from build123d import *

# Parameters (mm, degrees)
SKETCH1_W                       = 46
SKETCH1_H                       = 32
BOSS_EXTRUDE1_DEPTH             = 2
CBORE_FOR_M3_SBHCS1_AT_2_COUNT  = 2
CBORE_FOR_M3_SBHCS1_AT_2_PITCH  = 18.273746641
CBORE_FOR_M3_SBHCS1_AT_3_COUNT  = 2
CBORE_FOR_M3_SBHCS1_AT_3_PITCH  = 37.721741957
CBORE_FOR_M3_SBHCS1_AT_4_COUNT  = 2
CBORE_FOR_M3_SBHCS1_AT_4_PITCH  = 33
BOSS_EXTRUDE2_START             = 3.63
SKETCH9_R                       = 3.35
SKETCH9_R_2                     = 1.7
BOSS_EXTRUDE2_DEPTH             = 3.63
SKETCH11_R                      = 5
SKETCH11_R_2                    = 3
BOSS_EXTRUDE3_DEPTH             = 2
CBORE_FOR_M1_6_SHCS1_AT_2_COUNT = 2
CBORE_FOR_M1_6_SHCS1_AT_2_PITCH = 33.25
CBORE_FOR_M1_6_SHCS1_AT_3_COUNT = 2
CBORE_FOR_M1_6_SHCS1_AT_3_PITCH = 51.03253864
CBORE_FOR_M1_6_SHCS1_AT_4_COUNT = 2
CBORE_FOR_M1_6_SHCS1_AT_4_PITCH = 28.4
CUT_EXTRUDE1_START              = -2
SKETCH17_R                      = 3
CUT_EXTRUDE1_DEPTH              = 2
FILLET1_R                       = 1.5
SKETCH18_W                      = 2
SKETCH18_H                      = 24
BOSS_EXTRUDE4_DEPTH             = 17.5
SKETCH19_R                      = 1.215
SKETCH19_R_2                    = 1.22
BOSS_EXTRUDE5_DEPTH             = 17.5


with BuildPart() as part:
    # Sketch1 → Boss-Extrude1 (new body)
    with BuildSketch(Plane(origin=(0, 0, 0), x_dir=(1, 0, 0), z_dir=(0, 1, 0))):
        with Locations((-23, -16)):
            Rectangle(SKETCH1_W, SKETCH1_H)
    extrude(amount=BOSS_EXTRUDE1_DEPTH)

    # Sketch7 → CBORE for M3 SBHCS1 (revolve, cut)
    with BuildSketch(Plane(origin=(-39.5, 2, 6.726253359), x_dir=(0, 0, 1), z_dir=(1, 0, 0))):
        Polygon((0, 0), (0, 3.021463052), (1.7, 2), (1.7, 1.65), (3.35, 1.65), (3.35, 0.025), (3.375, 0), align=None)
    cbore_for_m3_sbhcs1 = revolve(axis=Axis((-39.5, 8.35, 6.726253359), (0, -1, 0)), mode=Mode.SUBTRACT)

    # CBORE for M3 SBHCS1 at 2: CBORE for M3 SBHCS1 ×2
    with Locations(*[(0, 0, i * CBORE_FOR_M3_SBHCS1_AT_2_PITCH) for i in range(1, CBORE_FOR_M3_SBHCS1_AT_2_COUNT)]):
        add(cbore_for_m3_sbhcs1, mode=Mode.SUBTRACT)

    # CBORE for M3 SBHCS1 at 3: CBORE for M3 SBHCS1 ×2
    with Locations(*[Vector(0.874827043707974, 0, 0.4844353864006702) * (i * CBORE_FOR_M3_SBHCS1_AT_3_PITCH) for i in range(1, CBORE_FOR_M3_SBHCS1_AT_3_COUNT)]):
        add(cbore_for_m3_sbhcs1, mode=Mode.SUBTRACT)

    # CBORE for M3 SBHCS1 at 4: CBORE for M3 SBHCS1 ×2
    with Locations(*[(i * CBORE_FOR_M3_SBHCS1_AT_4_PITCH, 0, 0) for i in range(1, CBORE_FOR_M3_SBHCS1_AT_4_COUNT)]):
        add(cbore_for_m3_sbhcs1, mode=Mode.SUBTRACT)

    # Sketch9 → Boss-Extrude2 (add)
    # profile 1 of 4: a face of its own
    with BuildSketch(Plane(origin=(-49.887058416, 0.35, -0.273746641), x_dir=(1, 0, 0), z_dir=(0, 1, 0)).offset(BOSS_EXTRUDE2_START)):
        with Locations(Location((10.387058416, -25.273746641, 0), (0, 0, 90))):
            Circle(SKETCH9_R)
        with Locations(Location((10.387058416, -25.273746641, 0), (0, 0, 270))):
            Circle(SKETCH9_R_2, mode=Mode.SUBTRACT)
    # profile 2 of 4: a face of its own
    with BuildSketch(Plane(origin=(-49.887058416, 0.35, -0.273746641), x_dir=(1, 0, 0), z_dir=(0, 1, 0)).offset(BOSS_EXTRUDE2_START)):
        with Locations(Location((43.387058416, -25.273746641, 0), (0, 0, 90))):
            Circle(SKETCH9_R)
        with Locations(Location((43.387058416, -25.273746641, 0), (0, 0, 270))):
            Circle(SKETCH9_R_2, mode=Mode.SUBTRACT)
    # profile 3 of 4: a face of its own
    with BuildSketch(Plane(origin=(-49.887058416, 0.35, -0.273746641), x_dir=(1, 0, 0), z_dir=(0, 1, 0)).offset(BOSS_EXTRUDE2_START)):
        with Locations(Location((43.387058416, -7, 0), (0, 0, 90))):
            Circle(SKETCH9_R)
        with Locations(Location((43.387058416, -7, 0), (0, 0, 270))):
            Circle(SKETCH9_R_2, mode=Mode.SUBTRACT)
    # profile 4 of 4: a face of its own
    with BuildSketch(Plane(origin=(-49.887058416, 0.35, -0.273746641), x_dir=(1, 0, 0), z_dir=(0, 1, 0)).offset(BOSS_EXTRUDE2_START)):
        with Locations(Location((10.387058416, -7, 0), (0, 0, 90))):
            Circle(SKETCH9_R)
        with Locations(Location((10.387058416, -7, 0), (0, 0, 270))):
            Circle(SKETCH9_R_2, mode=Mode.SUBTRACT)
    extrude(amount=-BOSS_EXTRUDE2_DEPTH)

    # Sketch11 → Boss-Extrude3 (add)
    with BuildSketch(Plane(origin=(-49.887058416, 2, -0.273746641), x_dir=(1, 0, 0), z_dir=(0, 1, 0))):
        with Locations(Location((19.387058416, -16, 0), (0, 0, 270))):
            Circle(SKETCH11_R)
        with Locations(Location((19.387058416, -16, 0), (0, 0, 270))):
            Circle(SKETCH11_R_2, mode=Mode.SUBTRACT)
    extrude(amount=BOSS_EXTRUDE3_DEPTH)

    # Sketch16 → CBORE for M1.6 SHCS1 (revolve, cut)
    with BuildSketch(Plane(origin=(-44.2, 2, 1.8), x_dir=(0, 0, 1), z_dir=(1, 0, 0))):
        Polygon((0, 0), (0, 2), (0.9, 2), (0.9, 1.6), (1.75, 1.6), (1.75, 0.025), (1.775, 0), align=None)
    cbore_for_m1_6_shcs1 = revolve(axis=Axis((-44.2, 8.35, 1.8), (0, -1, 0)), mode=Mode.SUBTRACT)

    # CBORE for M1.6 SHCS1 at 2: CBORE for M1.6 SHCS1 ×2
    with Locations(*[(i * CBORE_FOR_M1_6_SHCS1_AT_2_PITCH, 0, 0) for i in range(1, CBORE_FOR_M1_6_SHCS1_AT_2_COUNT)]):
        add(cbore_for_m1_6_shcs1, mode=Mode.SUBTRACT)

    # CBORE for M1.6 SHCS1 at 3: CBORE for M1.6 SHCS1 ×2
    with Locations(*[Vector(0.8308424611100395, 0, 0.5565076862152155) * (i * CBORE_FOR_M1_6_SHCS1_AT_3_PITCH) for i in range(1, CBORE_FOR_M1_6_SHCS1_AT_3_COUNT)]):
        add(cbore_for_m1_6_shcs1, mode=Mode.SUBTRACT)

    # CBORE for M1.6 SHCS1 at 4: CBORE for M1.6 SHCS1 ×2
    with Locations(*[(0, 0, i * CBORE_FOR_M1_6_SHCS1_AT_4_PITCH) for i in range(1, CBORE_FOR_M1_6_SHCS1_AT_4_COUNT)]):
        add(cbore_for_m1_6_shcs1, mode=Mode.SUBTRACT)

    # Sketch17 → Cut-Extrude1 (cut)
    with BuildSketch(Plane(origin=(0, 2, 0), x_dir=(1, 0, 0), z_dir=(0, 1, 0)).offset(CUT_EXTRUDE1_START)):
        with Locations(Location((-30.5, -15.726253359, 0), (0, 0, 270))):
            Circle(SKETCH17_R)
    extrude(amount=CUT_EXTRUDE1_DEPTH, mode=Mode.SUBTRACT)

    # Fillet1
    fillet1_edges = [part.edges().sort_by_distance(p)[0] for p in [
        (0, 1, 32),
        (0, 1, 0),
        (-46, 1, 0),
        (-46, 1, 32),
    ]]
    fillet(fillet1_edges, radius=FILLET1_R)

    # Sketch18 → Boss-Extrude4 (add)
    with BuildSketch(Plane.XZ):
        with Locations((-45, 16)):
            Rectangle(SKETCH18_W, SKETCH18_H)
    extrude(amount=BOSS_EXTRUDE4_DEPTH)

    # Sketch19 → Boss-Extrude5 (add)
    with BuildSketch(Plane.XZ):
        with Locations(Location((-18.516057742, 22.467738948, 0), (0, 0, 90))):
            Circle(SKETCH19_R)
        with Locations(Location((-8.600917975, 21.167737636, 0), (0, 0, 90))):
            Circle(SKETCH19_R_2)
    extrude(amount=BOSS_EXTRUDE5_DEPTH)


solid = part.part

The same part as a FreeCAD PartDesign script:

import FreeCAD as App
import Part
import Sketcher
from FreeCAD import Vector
Q = App.Units.Quantity


def edges_at(feature, points):
    """Names of the edges that pass closest to the given points."""
    edges = feature.Shape.Edges
    near = lambda p: min(range(len(edges)), key=lambda i: edges[i].distToShape(Part.Vertex(*p))[0])
    return sorted({f"Edge{near(p) + 1}" for p in points})


def add_polygon(sketch, points):
    """Adds a closed chain of lines whose ends are joined by coincident constraints."""
    first, n = sketch.GeometryCount, len(points)
    for a, b in zip(points, points[1:] + points[:1]):
        sketch.addGeometry(Part.LineSegment(App.Vector(*a, 0), App.Vector(*b, 0)), False)
    for i in range(n):
        sketch.addConstraint(Sketcher.Constraint("Coincident", first + i, 2, first + (i + 1) % n, 1))

doc = App.newDocument("Part")
params = doc.addObject("Spreadsheet::Sheet", "Params")
for row, (alias, value) in enumerate([
    ("sketch1_width", "46 mm"),
    ("sketch1_height", "32 mm"),
    ("pad1_length", "2 mm"),
    ("sketch2_width", "0.35 mm"),
    ("sketch2_height", "1.65 mm"),
    ("groove_angle", "360 deg"),
    ("linearpattern_pitch", "18.273747 mm"),
    ("linearpattern2_pitch", "37.721742 mm"),
    ("linearpattern3_pitch", "33 mm"),
    ("sketch3_diameter", "6.7 mm"),
    ("sketch3_diameter2", "3.4 mm"),
    ("pad2_length", "3.63 mm"),
    ("sketch4_diameter", "10 mm"),
    ("sketch4_diameter2", "6 mm"),
    ("pad3_length", "2 mm"),
    ("sketch5_width", "2 mm"),
    ("sketch5_width2", "0.4 mm"),
    ("sketch5_height", "0.9 mm"),
    ("sketch5_height2", "0.85 mm"),
    ("groove2_angle", "360 deg"),
    ("linearpattern4_pitch", "33.25 mm"),
    ("linearpattern5_pitch", "51.032539 mm"),
    ("linearpattern6_pitch", "28.4 mm"),
    ("sketch6_diameter", "6 mm"),
    ("pocket1_length", "2 mm"),
    ("fillet_radius", "1.5 mm"),
    ("sketch7_width", "2 mm"),
    ("sketch7_height", "24 mm"),
    ("pad4_length", "17.5 mm"),
    ("sketch8_diameter", "2.43 mm"),
    ("sketch8_diameter2", "2.44 mm"),
    ("pad5_length", "17.5 mm"),
], start=1):
    params.set(f"A{row}", alias)
    params.set(f"B{row}", "=" + value)
    params.setAlias(f"B{row}", alias)

body = doc.addObject("PartDesign::Body", "Body")

# Sketch on XZ plane
sketch1 = body.newObject("Sketcher::SketchObject", "Sketch")
sketch1.AttachmentSupport = (doc.getObject("XZ_Plane"), [""])
sketch1.MapMode = "FlatFace"
add_polygon(sketch1, [(-46, 0), (-46, 32), (0, 32), (0, 0)])  # lines 0-3
sketch1.addConstraint(Sketcher.Constraint("Vertical", 0))
sketch1.addConstraint(Sketcher.Constraint("Horizontal", 1))
sketch1.addConstraint(Sketcher.Constraint("Vertical", 2))
sketch1.addConstraint(Sketcher.Constraint("Horizontal", 3))
sketch1.addConstraint(Sketcher.Constraint("Coincident", 2, 2, -1, 1))
sketch1.addConstraint(Sketcher.Constraint("DistanceX", 1, 1, 1, 2, 46.0))
sketch1.addConstraint(Sketcher.Constraint("DistanceY", 0, 1, 0, 2, 32.0))
sketch1.setExpression("Constraints[9]", "Params.sketch1_width")
sketch1.setExpression("Constraints[10]", "Params.sketch1_height")
pad1 = body.newObject("PartDesign::Pad", "Pad")
pad1.Profile = sketch1
pad1.setExpression("Length", "Params.pad1_length")
pad1.Reversed = True

# Sketch on YZ plane
sketch2 = body.newObject("Sketcher::SketchObject", "Sketch001")
sketch2.AttachmentSupport = (doc.getObject("YZ_Plane"), [""])
sketch2.MapMode = "FlatFace"
sketch2.AttachmentOffset = App.Placement(Vector(0, 0, -39.5), App.Rotation())
add_polygon(sketch2, [(-1.021463, 6.726253), (2, 6.726253), (2, 10.101253), (1.975, 10.076253), (0.35, 10.076253), (0.35, 8.426253), (0, 8.426253)])  # lines 0-6
sketch2.addGeometry(Part.LineSegment(Vector(2, 6.726253, 0), Vector(-1.021463, 6.726253, 0)), True)  # axis
sketch2.addConstraint(Sketcher.Constraint("Horizontal", 0))
sketch2.addConstraint(Sketcher.Constraint("Vertical", 1))
sketch2.addConstraint(Sketcher.Constraint("Horizontal", 3))
sketch2.addConstraint(Sketcher.Constraint("Vertical", 4))
sketch2.addConstraint(Sketcher.Constraint("Horizontal", 5))
sketch2.addConstraint(Sketcher.Constraint("Horizontal", 7))
sketch2.addConstraint(Sketcher.Constraint("Coincident", 7, 1, 0, 2))
sketch2.addConstraint(Sketcher.Constraint("PointOnObject", 5, 2, -2))
sketch2.addConstraint(Sketcher.Constraint("Equal", 0, 7))
sketch2.addConstraint(Sketcher.Constraint("Angle", 2, Q("-135 deg")))
sketch2.addConstraint(Sketcher.Constraint("Angle", 6, Q("-121 deg")))
sketch2.addConstraint(Sketcher.Constraint("DistanceX", -1, 1, 0, 2, 2.0))
sketch2.addConstraint(Sketcher.Constraint("DistanceX", 5, 2, 5, 1, 0.35))
sketch2.addConstraint(Sketcher.Constraint("DistanceY", 4, 2, 4, 1, 1.65))
sketch2.addConstraint(Sketcher.Constraint("DistanceY", 0, 2, 4, 2, 1.7))
sketch2.addConstraint(Sketcher.Constraint("DistanceX", 3, 2, 3, 1, 1.625))
sketch2.addConstraint(Sketcher.Constraint("DistanceY", -1, 1, 0, 2, 6.726253))
sketch2.setExpression("Constraints[19]", "Params.sketch2_width")
sketch2.setExpression("Constraints[20]", "Params.sketch2_height")
groove = body.newObject("PartDesign::Groove", "Groove")
groove.Profile = sketch2
groove.ReferenceAxis = (sketch2, ["Axis0"])
groove.setExpression("Angle", "Params.groove_angle")
doc.recompute()

linearpattern = body.newObject("PartDesign::LinearPattern", "LinearPattern")
linearpattern.Originals = [groove]
linearpattern.Direction = (doc.getObject("Z_Axis"), [""])
linearpattern.Mode = "offset"
linearpattern.setExpression("Offset", "Params.linearpattern_pitch")
linearpattern.Occurrences = 2
body.Tip = linearpattern
doc.recompute()

datumline = body.newObject("PartDesign::Line", "DatumLine")
datumline.Placement = App.Placement(Vector(0, 0, 0), App.Rotation(Vector(0, 0, 1), Vector(0.874827044, 0, 0.484435386)))
linearpattern2 = body.newObject("PartDesign::LinearPattern", "LinearPattern001")
linearpattern2.Originals = [groove]
linearpattern2.Direction = (datumline, [""])
linearpattern2.Mode = "offset"
linearpattern2.setExpression("Offset", "Params.linearpattern2_pitch")
linearpattern2.Occurrences = 2
body.Tip = linearpattern2
doc.recompute()

linearpattern3 = body.newObject("PartDesign::LinearPattern", "LinearPattern002")
linearpattern3.Originals = [groove]
linearpattern3.Direction = (doc.getObject("X_Axis"), [""])
linearpattern3.Mode = "offset"
linearpattern3.setExpression("Offset", "Params.linearpattern3_pitch")
linearpattern3.Occurrences = 2
body.Tip = linearpattern3

# Sketch on XZ plane
sketch3 = body.newObject("Sketcher::SketchObject", "Sketch002")
sketch3.AttachmentSupport = (doc.getObject("XZ_Plane"), [""])
sketch3.MapMode = "FlatFace"
sketch3.AttachmentOffset = App.Placement(Vector(0, 0, -3.98), App.Rotation())
sketch3.addGeometry(Part.Circle(Vector(-39.5, 25, 0), Vector(0, 0, 1), 3.35), False)
sketch3.addGeometry(Part.Circle(Vector(-39.5, 25, 0), Vector(0, 0, 1), 1.7), False)
sketch3.addGeometry(Part.Circle(Vector(-6.5, 25, 0), Vector(0, 0, 1), 3.35), False)
sketch3.addGeometry(Part.Circle(Vector(-6.5, 25, 0), Vector(0, 0, 1), 1.7), False)
sketch3.addGeometry(Part.Circle(Vector(-6.5, 6.726253, 0), Vector(0, 0, 1), 3.35), False)
sketch3.addGeometry(Part.Circle(Vector(-6.5, 6.726253, 0), Vector(0, 0, 1), 1.7), False)
sketch3.addGeometry(Part.Circle(Vector(-39.5, 6.726253, 0), Vector(0, 0, 1), 3.35), False)
sketch3.addGeometry(Part.Circle(Vector(-39.5, 6.726253, 0), Vector(0, 0, 1), 1.7), False)
sketch3.addConstraint(Sketcher.Constraint("Coincident", 1, 3, 0, 3))
sketch3.addConstraint(Sketcher.Constraint("Coincident", 3, 3, 2, 3))
sketch3.addConstraint(Sketcher.Constraint("Coincident", 5, 3, 4, 3))
sketch3.addConstraint(Sketcher.Constraint("Coincident", 7, 3, 6, 3))
sketch3.addConstraint(Sketcher.Constraint("Equal", 0, 2))
sketch3.addConstraint(Sketcher.Constraint("Equal", 1, 3))
sketch3.addConstraint(Sketcher.Constraint("Equal", 2, 4))
sketch3.addConstraint(Sketcher.Constraint("Equal", 3, 5))
sketch3.addConstraint(Sketcher.Constraint("Equal", 4, 6))
sketch3.addConstraint(Sketcher.Constraint("Equal", 5, 7))
sketch3.addConstraint(Sketcher.Constraint("Horizontal", 1, 3, 2, 3))
sketch3.addConstraint(Sketcher.Constraint("Horizontal", 5, 3, 6, 3))
sketch3.addConstraint(Sketcher.Constraint("Vertical", 3, 3, 4, 3))
sketch3.addConstraint(Sketcher.Constraint("Vertical", 1, 3, 6, 3))
sketch3.addConstraint(Sketcher.Constraint("Diameter", 0, 6.7))
sketch3.addConstraint(Sketcher.Constraint("Diameter", 1, 3.4))
sketch3.addConstraint(Sketcher.Constraint("DistanceY", -1, 1, 0, 3, 25.0))
sketch3.addConstraint(Sketcher.Constraint("DistanceX", 0, 3, 2, 3, 33.0))
sketch3.addConstraint(Sketcher.Constraint("DistanceX", 0, 3, -1, 1, 39.5))
sketch3.addConstraint(Sketcher.Constraint("DistanceY", -1, 1, 4, 3, 6.726253))
sketch3.setExpression("Constraints[14]", "Params.sketch3_diameter")
sketch3.setExpression("Constraints[15]", "Params.sketch3_diameter2")
pad2 = body.newObject("PartDesign::Pad", "Pad001")
pad2.Profile = sketch3
pad2.setExpression("Length", "Params.pad2_length")

# Sketch on XZ plane
sketch4 = body.newObject("Sketcher::SketchObject", "Sketch003")
sketch4.AttachmentSupport = (doc.getObject("XZ_Plane"), [""])
sketch4.MapMode = "FlatFace"
sketch4.AttachmentOffset = App.Placement(Vector(0, 0, -2), App.Rotation())
sketch4.addGeometry(Part.Circle(Vector(-30.5, 15.726253, 0), Vector(0, 0, 1), 5), False)
sketch4.addGeometry(Part.Circle(Vector(-30.5, 15.726253, 0), Vector(0, 0, 1), 3), False)
sketch4.addConstraint(Sketcher.Constraint("Coincident", 1, 3, 0, 3))
sketch4.addConstraint(Sketcher.Constraint("Diameter", 0, 10.0))
sketch4.addConstraint(Sketcher.Constraint("Diameter", 1, 6.0))
sketch4.addConstraint(Sketcher.Constraint("DistanceX", 0, 3, -1, 1, 30.5))
sketch4.addConstraint(Sketcher.Constraint("DistanceY", -1, 1, 0, 3, 15.726253))
sketch4.setExpression("Constraints[1]", "Params.sketch4_diameter")
sketch4.setExpression("Constraints[2]", "Params.sketch4_diameter2")
pad3 = body.newObject("PartDesign::Pad", "Pad002")
pad3.Profile = sketch4
pad3.setExpression("Length", "Params.pad3_length")
pad3.Reversed = True

# Sketch on YZ plane
sketch5 = body.newObject("Sketcher::SketchObject", "Sketch004")
sketch5.AttachmentSupport = (doc.getObject("YZ_Plane"), [""])
sketch5.MapMode = "FlatFace"
sketch5.AttachmentOffset = App.Placement(Vector(0, 0, -44.2), App.Rotation())
add_polygon(sketch5, [(0, 1.8), (2, 1.8), (2, 3.575), (1.975, 3.55), (0.4, 3.55), (0.4, 2.7), (0, 2.7)])  # lines 0-6
sketch5.addGeometry(Part.LineSegment(Vector(2, 1.8, 0), Vector(0, 1.8, 0)), True)  # axis
sketch5.addConstraint(Sketcher.Constraint("Horizontal", 0))
sketch5.addConstraint(Sketcher.Constraint("Vertical", 1))
sketch5.addConstraint(Sketcher.Constraint("Horizontal", 3))
sketch5.addConstraint(Sketcher.Constraint("Vertical", 4))
sketch5.addConstraint(Sketcher.Constraint("Horizontal", 5))
sketch5.addConstraint(Sketcher.Constraint("Vertical", 6))
sketch5.addConstraint(Sketcher.Constraint("Horizontal", 7))
sketch5.addConstraint(Sketcher.Constraint("Coincident", 7, 1, 0, 2))
sketch5.addConstraint(Sketcher.Constraint("PointOnObject", 5, 2, -2))
sketch5.addConstraint(Sketcher.Constraint("PointOnObject", 7, 2, -2))
sketch5.addConstraint(Sketcher.Constraint("DistanceX", 0, 1, 0, 2, 2.0))
sketch5.addConstraint(Sketcher.Constraint("Angle", 2, Q("-135 deg")))
sketch5.addConstraint(Sketcher.Constraint("DistanceX", 5, 2, 5, 1, 0.4))
sketch5.addConstraint(Sketcher.Constraint("DistanceY", 6, 2, 6, 1, 0.9))
sketch5.addConstraint(Sketcher.Constraint("DistanceY", 4, 2, 4, 1, 0.85))
sketch5.addConstraint(Sketcher.Constraint("DistanceY", -1, 1, 0, 2, 1.8))
sketch5.addConstraint(Sketcher.Constraint("DistanceX", 3, 2, 3, 1, 1.575))
sketch5.setExpression("Constraints[17]", "Params.sketch5_width")
sketch5.setExpression("Constraints[19]", "Params.sketch5_width2")
sketch5.setExpression("Constraints[20]", "Params.sketch5_height")
sketch5.setExpression("Constraints[21]", "Params.sketch5_height2")
groove2 = body.newObject("PartDesign::Groove", "Groove001")
groove2.Profile = sketch5
groove2.ReferenceAxis = (sketch5, ["Axis0"])
groove2.setExpression("Angle", "Params.groove2_angle")
doc.recompute()

linearpattern4 = body.newObject("PartDesign::LinearPattern", "LinearPattern003")
linearpattern4.Originals = [groove2]
linearpattern4.Direction = (doc.getObject("X_Axis"), [""])
linearpattern4.Mode = "offset"
linearpattern4.setExpression("Offset", "Params.linearpattern4_pitch")
linearpattern4.Occurrences = 2
body.Tip = linearpattern4
doc.recompute()

datumline2 = body.newObject("PartDesign::Line", "DatumLine001")
datumline2.Placement = App.Placement(Vector(0, 0, 0), App.Rotation(Vector(0, 0, 1), Vector(0.830842461, 0, 0.556507686)))
linearpattern5 = body.newObject("PartDesign::LinearPattern", "LinearPattern004")
linearpattern5.Originals = [groove2]
linearpattern5.Direction = (datumline2, [""])
linearpattern5.Mode = "offset"
linearpattern5.setExpression("Offset", "Params.linearpattern5_pitch")
linearpattern5.Occurrences = 2
body.Tip = linearpattern5
doc.recompute()

linearpattern6 = body.newObject("PartDesign::LinearPattern", "LinearPattern005")
linearpattern6.Originals = [groove2]
linearpattern6.Direction = (doc.getObject("Z_Axis"), [""])
linearpattern6.Mode = "offset"
linearpattern6.setExpression("Offset", "Params.linearpattern6_pitch")
linearpattern6.Occurrences = 2
body.Tip = linearpattern6

# Sketch on XZ plane
sketch6 = body.newObject("Sketcher::SketchObject", "Sketch005")
sketch6.AttachmentSupport = (doc.getObject("XZ_Plane"), [""])
sketch6.MapMode = "FlatFace"
sketch6.addGeometry(Part.Circle(Vector(-30.5, 15.726253, 0), Vector(0, 0, 1), 3), False)
sketch6.addConstraint(Sketcher.Constraint("Diameter", 0, 6.0))
sketch6.addConstraint(Sketcher.Constraint("DistanceX", 0, 3, -1, 1, 30.5))
sketch6.addConstraint(Sketcher.Constraint("DistanceY", -1, 1, 0, 3, 15.726253))
sketch6.setExpression("Constraints[0]", "Params.sketch6_diameter")
pocket1 = body.newObject("PartDesign::Pocket", "Pocket")
pocket1.Profile = sketch6
pocket1.setExpression("Length", "Params.pocket1_length")
doc.recompute()

fillet = body.newObject("PartDesign::Fillet", "Fillet")
fillet.Base = (pocket1, edges_at(pocket1, [
    (0, 1, 32),
    (0, 1, 0),
    (-46, 1, 0),
    (-46, 1, 32),
]))
fillet.setExpression("Radius", "Params.fillet_radius")

# Sketch on XZ plane
sketch7 = body.newObject("Sketcher::SketchObject", "Sketch006")
sketch7.AttachmentSupport = (doc.getObject("XZ_Plane"), [""])
sketch7.MapMode = "FlatFace"
add_polygon(sketch7, [(-46, 28), (-46, 4), (-44, 4), (-44, 28)])  # lines 0-3
sketch7.addConstraint(Sketcher.Constraint("Vertical", 0))
sketch7.addConstraint(Sketcher.Constraint("Horizontal", 1))
sketch7.addConstraint(Sketcher.Constraint("Vertical", 2))
sketch7.addConstraint(Sketcher.Constraint("Horizontal", 3))
sketch7.addConstraint(Sketcher.Constraint("DistanceX", 1, 1, 1, 2, 2.0))
sketch7.addConstraint(Sketcher.Constraint("DistanceY", 0, 2, 0, 1, 24.0))
sketch7.addConstraint(Sketcher.Constraint("DistanceX", 0, 2, -1, 1, 46.0))
sketch7.addConstraint(Sketcher.Constraint("DistanceY", -1, 1, 0, 2, 4.0))
sketch7.setExpression("Constraints[8]", "Params.sketch7_width")
sketch7.setExpression("Constraints[9]", "Params.sketch7_height")
pad4 = body.newObject("PartDesign::Pad", "Pad003")
pad4.Profile = sketch7
pad4.setExpression("Length", "Params.pad4_length")

# Sketch on XZ plane
sketch8 = body.newObject("Sketcher::SketchObject", "Sketch007")
sketch8.AttachmentSupport = (doc.getObject("XZ_Plane"), [""])
sketch8.MapMode = "FlatFace"
sketch8.addGeometry(Part.Circle(Vector(-18.516058, 22.467739, 0), Vector(0, 0, 1), 1.215), False)
sketch8.addGeometry(Part.Circle(Vector(-8.600918, 21.167738, 0), Vector(0, 0, 1), 1.22), False)
sketch8.addConstraint(Sketcher.Constraint("Diameter", 0, 2.43))
sketch8.addConstraint(Sketcher.Constraint("Diameter", 1, 2.44))
sketch8.addConstraint(Sketcher.Constraint("DistanceY", 1, 3, 0, 3, 1.300001))
sketch8.addConstraint(Sketcher.Constraint("DistanceY", -1, 1, 0, 3, 22.467739))
sketch8.addConstraint(Sketcher.Constraint("DistanceX", 0, 3, 1, 3, 9.91514))
sketch8.addConstraint(Sketcher.Constraint("DistanceX", 0, 3, -1, 1, 18.516058))
sketch8.setExpression("Constraints[0]", "Params.sketch8_diameter")
sketch8.setExpression("Constraints[1]", "Params.sketch8_diameter2")
pad5 = body.newObject("PartDesign::Pad", "Pad004")
pad5.Profile = sketch8
pad5.setExpression("Length", "Params.pad5_length")

doc.recompute()
